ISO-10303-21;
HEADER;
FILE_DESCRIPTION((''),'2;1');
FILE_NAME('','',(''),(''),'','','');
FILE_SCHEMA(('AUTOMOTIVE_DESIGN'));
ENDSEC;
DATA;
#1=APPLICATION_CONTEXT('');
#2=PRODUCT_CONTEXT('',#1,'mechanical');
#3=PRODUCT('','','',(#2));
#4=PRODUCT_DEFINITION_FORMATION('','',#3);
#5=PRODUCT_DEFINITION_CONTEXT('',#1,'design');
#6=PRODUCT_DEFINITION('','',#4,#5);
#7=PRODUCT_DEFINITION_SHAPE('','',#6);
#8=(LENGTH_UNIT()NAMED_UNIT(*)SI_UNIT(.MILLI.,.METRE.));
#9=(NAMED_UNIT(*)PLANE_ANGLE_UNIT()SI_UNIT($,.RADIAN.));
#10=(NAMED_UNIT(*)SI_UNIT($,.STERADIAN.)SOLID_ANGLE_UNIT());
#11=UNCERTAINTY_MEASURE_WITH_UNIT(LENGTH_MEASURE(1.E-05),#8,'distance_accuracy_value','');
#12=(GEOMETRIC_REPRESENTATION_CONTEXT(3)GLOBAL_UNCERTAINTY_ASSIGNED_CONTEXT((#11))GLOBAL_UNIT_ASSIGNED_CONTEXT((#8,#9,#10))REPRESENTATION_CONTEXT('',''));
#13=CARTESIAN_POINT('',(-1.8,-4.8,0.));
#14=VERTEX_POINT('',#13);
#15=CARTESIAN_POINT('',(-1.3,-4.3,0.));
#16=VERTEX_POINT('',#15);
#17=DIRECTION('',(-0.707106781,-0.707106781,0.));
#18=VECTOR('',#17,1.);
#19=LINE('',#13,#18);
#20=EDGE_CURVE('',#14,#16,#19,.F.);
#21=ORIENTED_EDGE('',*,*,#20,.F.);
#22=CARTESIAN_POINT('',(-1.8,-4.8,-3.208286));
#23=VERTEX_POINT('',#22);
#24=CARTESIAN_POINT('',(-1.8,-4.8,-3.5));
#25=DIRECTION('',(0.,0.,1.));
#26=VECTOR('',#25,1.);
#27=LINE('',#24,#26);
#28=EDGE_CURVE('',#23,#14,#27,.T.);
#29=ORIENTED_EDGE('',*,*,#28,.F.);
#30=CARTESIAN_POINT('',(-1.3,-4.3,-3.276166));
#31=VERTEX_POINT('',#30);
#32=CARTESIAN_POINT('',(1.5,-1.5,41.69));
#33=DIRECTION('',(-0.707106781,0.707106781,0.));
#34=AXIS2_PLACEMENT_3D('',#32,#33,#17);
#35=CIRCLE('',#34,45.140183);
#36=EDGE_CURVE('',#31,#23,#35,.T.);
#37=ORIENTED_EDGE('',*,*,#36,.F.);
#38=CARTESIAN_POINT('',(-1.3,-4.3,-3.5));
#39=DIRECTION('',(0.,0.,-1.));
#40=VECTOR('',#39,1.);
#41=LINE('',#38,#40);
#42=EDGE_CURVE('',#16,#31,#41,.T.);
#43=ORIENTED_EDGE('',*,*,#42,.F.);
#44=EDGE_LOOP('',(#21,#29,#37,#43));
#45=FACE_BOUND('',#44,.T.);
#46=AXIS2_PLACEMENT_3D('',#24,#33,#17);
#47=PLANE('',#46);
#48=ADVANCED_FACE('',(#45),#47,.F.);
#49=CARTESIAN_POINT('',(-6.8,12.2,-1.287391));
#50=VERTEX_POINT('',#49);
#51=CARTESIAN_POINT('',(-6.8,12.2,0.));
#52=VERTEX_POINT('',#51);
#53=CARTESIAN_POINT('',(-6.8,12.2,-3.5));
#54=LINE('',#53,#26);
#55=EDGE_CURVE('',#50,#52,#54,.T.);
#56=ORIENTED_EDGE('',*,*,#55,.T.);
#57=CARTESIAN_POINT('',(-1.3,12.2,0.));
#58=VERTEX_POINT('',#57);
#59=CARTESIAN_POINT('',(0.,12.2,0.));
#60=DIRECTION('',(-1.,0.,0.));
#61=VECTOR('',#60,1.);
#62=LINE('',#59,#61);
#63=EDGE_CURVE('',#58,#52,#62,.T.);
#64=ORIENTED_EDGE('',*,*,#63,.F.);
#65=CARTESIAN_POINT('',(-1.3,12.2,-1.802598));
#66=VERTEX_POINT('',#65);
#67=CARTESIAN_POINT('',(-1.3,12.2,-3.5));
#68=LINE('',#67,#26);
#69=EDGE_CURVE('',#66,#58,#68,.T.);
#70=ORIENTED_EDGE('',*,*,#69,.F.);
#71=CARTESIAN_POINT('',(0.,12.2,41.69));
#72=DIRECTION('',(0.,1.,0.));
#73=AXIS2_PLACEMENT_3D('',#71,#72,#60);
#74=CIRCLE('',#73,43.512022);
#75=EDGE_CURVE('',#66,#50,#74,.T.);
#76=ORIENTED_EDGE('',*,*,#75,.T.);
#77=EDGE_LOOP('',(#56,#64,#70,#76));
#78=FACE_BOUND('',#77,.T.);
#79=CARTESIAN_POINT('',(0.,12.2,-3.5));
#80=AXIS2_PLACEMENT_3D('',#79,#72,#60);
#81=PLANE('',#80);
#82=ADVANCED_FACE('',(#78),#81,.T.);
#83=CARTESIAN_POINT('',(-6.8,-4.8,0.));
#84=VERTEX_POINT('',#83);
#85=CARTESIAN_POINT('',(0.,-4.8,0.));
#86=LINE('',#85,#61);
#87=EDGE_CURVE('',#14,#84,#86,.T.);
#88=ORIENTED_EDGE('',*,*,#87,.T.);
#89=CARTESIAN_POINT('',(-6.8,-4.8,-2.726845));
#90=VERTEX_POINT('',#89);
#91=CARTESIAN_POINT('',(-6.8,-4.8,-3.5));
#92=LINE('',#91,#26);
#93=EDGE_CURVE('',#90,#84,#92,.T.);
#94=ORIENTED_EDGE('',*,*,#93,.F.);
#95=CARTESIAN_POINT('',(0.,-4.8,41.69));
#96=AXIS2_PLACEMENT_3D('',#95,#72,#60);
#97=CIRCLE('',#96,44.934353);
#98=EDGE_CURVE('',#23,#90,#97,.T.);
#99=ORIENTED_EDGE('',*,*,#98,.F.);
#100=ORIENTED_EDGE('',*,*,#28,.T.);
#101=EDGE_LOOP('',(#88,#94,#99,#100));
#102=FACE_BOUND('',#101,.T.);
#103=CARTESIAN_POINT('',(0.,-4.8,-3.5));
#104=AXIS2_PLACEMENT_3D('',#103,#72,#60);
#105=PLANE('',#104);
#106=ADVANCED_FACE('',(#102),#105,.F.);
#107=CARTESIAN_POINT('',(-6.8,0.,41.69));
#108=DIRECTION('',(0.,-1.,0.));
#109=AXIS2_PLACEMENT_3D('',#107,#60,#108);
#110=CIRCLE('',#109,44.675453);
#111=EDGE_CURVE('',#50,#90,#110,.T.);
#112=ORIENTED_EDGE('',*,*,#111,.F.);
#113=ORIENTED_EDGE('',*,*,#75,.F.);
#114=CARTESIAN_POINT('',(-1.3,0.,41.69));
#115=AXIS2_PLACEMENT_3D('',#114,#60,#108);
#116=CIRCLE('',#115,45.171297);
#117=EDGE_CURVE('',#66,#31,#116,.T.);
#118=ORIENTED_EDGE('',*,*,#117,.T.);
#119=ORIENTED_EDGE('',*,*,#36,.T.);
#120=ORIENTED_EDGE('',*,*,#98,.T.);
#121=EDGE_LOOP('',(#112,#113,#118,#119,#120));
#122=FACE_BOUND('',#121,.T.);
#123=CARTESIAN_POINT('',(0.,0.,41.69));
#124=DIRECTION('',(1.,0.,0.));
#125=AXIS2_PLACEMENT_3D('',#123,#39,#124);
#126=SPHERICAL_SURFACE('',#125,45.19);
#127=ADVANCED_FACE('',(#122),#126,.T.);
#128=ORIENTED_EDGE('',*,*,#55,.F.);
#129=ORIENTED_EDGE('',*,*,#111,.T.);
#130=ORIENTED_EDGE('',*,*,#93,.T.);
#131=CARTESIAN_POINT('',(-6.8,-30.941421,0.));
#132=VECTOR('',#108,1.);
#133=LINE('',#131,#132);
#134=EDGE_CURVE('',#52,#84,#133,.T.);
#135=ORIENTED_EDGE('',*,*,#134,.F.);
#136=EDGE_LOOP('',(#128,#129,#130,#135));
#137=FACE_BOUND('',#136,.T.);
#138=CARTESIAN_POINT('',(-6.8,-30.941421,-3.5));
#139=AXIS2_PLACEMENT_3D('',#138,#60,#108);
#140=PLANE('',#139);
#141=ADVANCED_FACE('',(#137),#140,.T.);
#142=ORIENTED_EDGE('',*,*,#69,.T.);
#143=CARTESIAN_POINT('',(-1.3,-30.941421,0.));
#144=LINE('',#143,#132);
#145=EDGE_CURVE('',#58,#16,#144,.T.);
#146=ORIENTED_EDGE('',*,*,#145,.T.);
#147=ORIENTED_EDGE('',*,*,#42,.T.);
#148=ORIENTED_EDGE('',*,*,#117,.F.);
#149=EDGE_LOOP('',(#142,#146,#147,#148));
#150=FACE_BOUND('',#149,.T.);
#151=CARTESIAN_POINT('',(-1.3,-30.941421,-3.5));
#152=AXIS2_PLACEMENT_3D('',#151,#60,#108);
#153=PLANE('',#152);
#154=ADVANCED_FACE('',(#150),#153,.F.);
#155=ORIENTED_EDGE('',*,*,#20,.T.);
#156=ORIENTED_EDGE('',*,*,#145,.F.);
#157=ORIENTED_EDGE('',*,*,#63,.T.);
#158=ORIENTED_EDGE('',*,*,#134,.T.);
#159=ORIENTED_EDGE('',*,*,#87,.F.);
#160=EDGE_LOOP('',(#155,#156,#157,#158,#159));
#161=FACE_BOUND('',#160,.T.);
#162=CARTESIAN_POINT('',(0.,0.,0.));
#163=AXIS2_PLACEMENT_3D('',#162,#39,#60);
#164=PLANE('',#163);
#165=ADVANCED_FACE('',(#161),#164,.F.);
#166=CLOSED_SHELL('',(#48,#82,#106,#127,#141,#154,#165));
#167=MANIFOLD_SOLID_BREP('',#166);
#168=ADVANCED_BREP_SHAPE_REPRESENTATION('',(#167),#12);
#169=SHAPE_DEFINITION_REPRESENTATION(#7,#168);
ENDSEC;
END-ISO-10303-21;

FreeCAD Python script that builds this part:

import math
import FreeCAD as App
import Part
import Sketcher

V = App.Vector


def edges_at(feature, points):
    """Names of the edges that pass closest to the given points."""
    edges = feature.Shape.Edges
    near = lambda p: min(range(len(edges)), key=lambda i: edges[i].distToShape(Part.Vertex(*p))[0])
    return sorted({f"Edge{near(p) + 1}" for p in points})


def add_polygon(sketch, points):
    """Adds a closed chain of lines whose ends are joined by coincident constraints."""
    first, n = sketch.GeometryCount, len(points)
    for a, b in zip(points, points[1:] + points[:1]):
        sketch.addGeometry(Part.LineSegment(App.Vector(*a, 0), App.Vector(*b, 0)), False)
    for i in range(n):
        sketch.addConstraint(Sketcher.Constraint("Coincident", first + i, 2, first + (i + 1) % n, 1))

doc = App.newDocument("Part")
params = doc.addObject("Spreadsheet::Sheet", "Params")
for row, (alias, value) in enumerate([
    ("sketch1_width", "14 mm"),
    ("sketch1_radius", "45.19 mm"),
    ("sketch1_height", "3.5 mm"),
    ("revolution_angle", "360 deg"),
    ("sketch2_height", "17 mm"),
    ("sketch2_width", "5.5 mm"),
    ("sketch2_width2", "37.95 mm"),
    ("chamfer_size", "0.5 mm"),
], start=1):
    params.set(f"A{row}", alias)
    params.set(f"B{row}", "=" + value)
    params.setAlias(f"B{row}", alias)

body = doc.addObject("PartDesign::Body", "Body")

# Sketch on XZ plane
sketch1 = doc.addObject("Sketcher::SketchObject", "Sketch")
body.addObject(sketch1)
sketch1.AttachmentSupport = (doc.XZ_Plane, [""])
sketch1.MapMode = "FlatFace"
sketch1.addGeometry(Part.LineSegment(V(14, 0, 0), V(14, -1.3, 0)), False)
sketch1.addGeometry(Part.ArcOfCircle(Part.Circle(V(0, 41.7, 0), V(0, 0, 1), 45.2), math.radians(-90), math.radians(-71.95)), False)
sketch1.addGeometry(Part.LineSegment(V(0, -3.5, 0), V(0, 0, 0)), False)
sketch1.addGeometry(Part.LineSegment(V(0, 0, 0), V(14, 0, 0)), False)
sketch1.addConstraint(Sketcher.Constraint("Coincident", 0, 2, 1, 2))
sketch1.addConstraint(Sketcher.Constraint("Coincident", 1, 1, 2, 1))
sketch1.addConstraint(Sketcher.Constraint("Coincident", 2, 2, 3, 1))
sketch1.addConstraint(Sketcher.Constraint("Coincident", 3, 2, 0, 1))
sketch1.addConstraint(Sketcher.Constraint("Vertical", 0))
sketch1.addConstraint(Sketcher.Constraint("Vertical", 2))
sketch1.addConstraint(Sketcher.Constraint("Horizontal", 3))
sketch1.addConstraint(Sketcher.Constraint("Coincident", 2, 2, -1, 1))
sketch1.addConstraint(Sketcher.Constraint("PointOnObject", 1, 3, -2))
sketch1.addConstraint(Sketcher.Constraint("DistanceX", 3, 1, 3, 2, 14.0))
sketch1.addConstraint(Sketcher.Constraint("Radius", 1, 45.19))
sketch1.addConstraint(Sketcher.Constraint("DistanceY", 2, 1, 2, 2, 3.5))
sketch1.setExpression("Constraints[9]", "Params.sketch1_width")
sketch1.setExpression("Constraints[10]", "Params.sketch1_radius")
sketch1.setExpression("Constraints[11]", "Params.sketch1_height")
revolution = doc.addObject("PartDesign::Revolution", "Revolution")
body.addObject(revolution)
revolution.Profile = sketch1
revolution.ReferenceAxis = (sketch1, ["V_Axis"])
revolution.setExpression("Angle", "Params.revolution_angle")

# Sketch on XY plane
sketch2 = doc.addObject("Sketcher::SketchObject", "Sketch001")
body.addObject(sketch2)
sketch2.AttachmentSupport = (doc.XY_Plane, [""])
sketch2.MapMode = "FlatFace"
add_polygon(sketch2, [(-19, 19), (-19, -19), (19, -19), (19, 19)])  # lines 0-3
add_polygon(sketch2, [(-1, -5), (-7, -5), (-7, 12), (-1, 12)])  # lines 4-7
sketch2.addConstraint(Sketcher.Constraint("Vertical", 0))
sketch2.addConstraint(Sketcher.Constraint("Horizontal", 1))
sketch2.addConstraint(Sketcher.Constraint("Vertical", 2))
sketch2.addConstraint(Sketcher.Constraint("Horizontal", 3))
sketch2.addConstraint(Sketcher.Constraint("Horizontal", 4))
sketch2.addConstraint(Sketcher.Constraint("Vertical", 5))
sketch2.addConstraint(Sketcher.Constraint("Horizontal", 6))
sketch2.addConstraint(Sketcher.Constraint("Vertical", 7))
sketch2.addConstraint(Sketcher.Constraint("Symmetric", 0, 2, 2, 2, -1, 1))
sketch2.addConstraint(Sketcher.Constraint("Equal", 3, 0))
sketch2.addConstraint(Sketcher.Constraint("DistanceY", 5, 1, 5, 2, 17.0))
sketch2.addConstraint(Sketcher.Constraint("DistanceX", 4, 2, 4, 1, 5.5))
sketch2.addConstraint(Sketcher.Constraint("DistanceX", 1, 1, 1, 2, 37.95))
sketch2.addConstraint(Sketcher.Constraint("DistanceX", 4, 2, -1, 1, 6.8))
sketch2.addConstraint(Sketcher.Constraint("DistanceY", 4, 2, -1, 1, 4.8))
sketch2.setExpression("Constraints[18]", "Params.sketch2_height")
sketch2.setExpression("Constraints[19]", "Params.sketch2_width")
sketch2.setExpression("Constraints[20]", "Params.sketch2_width2")
pocket1 = doc.addObject("PartDesign::Pocket", "Pocket")
body.addObject(pocket1)
pocket1.Profile = sketch2
pocket1.Type = "ThroughAll"
doc.recompute()

chamfer = doc.addObject("PartDesign::Chamfer", "Chamfer")
body.addObject(chamfer)
chamfer.Base = (pocket1, edges_at(pocket1, [(-1.3, -4.8, -1.613)]))
chamfer.setExpression("Size", "Params.chamfer_size")

doc.recompute()
